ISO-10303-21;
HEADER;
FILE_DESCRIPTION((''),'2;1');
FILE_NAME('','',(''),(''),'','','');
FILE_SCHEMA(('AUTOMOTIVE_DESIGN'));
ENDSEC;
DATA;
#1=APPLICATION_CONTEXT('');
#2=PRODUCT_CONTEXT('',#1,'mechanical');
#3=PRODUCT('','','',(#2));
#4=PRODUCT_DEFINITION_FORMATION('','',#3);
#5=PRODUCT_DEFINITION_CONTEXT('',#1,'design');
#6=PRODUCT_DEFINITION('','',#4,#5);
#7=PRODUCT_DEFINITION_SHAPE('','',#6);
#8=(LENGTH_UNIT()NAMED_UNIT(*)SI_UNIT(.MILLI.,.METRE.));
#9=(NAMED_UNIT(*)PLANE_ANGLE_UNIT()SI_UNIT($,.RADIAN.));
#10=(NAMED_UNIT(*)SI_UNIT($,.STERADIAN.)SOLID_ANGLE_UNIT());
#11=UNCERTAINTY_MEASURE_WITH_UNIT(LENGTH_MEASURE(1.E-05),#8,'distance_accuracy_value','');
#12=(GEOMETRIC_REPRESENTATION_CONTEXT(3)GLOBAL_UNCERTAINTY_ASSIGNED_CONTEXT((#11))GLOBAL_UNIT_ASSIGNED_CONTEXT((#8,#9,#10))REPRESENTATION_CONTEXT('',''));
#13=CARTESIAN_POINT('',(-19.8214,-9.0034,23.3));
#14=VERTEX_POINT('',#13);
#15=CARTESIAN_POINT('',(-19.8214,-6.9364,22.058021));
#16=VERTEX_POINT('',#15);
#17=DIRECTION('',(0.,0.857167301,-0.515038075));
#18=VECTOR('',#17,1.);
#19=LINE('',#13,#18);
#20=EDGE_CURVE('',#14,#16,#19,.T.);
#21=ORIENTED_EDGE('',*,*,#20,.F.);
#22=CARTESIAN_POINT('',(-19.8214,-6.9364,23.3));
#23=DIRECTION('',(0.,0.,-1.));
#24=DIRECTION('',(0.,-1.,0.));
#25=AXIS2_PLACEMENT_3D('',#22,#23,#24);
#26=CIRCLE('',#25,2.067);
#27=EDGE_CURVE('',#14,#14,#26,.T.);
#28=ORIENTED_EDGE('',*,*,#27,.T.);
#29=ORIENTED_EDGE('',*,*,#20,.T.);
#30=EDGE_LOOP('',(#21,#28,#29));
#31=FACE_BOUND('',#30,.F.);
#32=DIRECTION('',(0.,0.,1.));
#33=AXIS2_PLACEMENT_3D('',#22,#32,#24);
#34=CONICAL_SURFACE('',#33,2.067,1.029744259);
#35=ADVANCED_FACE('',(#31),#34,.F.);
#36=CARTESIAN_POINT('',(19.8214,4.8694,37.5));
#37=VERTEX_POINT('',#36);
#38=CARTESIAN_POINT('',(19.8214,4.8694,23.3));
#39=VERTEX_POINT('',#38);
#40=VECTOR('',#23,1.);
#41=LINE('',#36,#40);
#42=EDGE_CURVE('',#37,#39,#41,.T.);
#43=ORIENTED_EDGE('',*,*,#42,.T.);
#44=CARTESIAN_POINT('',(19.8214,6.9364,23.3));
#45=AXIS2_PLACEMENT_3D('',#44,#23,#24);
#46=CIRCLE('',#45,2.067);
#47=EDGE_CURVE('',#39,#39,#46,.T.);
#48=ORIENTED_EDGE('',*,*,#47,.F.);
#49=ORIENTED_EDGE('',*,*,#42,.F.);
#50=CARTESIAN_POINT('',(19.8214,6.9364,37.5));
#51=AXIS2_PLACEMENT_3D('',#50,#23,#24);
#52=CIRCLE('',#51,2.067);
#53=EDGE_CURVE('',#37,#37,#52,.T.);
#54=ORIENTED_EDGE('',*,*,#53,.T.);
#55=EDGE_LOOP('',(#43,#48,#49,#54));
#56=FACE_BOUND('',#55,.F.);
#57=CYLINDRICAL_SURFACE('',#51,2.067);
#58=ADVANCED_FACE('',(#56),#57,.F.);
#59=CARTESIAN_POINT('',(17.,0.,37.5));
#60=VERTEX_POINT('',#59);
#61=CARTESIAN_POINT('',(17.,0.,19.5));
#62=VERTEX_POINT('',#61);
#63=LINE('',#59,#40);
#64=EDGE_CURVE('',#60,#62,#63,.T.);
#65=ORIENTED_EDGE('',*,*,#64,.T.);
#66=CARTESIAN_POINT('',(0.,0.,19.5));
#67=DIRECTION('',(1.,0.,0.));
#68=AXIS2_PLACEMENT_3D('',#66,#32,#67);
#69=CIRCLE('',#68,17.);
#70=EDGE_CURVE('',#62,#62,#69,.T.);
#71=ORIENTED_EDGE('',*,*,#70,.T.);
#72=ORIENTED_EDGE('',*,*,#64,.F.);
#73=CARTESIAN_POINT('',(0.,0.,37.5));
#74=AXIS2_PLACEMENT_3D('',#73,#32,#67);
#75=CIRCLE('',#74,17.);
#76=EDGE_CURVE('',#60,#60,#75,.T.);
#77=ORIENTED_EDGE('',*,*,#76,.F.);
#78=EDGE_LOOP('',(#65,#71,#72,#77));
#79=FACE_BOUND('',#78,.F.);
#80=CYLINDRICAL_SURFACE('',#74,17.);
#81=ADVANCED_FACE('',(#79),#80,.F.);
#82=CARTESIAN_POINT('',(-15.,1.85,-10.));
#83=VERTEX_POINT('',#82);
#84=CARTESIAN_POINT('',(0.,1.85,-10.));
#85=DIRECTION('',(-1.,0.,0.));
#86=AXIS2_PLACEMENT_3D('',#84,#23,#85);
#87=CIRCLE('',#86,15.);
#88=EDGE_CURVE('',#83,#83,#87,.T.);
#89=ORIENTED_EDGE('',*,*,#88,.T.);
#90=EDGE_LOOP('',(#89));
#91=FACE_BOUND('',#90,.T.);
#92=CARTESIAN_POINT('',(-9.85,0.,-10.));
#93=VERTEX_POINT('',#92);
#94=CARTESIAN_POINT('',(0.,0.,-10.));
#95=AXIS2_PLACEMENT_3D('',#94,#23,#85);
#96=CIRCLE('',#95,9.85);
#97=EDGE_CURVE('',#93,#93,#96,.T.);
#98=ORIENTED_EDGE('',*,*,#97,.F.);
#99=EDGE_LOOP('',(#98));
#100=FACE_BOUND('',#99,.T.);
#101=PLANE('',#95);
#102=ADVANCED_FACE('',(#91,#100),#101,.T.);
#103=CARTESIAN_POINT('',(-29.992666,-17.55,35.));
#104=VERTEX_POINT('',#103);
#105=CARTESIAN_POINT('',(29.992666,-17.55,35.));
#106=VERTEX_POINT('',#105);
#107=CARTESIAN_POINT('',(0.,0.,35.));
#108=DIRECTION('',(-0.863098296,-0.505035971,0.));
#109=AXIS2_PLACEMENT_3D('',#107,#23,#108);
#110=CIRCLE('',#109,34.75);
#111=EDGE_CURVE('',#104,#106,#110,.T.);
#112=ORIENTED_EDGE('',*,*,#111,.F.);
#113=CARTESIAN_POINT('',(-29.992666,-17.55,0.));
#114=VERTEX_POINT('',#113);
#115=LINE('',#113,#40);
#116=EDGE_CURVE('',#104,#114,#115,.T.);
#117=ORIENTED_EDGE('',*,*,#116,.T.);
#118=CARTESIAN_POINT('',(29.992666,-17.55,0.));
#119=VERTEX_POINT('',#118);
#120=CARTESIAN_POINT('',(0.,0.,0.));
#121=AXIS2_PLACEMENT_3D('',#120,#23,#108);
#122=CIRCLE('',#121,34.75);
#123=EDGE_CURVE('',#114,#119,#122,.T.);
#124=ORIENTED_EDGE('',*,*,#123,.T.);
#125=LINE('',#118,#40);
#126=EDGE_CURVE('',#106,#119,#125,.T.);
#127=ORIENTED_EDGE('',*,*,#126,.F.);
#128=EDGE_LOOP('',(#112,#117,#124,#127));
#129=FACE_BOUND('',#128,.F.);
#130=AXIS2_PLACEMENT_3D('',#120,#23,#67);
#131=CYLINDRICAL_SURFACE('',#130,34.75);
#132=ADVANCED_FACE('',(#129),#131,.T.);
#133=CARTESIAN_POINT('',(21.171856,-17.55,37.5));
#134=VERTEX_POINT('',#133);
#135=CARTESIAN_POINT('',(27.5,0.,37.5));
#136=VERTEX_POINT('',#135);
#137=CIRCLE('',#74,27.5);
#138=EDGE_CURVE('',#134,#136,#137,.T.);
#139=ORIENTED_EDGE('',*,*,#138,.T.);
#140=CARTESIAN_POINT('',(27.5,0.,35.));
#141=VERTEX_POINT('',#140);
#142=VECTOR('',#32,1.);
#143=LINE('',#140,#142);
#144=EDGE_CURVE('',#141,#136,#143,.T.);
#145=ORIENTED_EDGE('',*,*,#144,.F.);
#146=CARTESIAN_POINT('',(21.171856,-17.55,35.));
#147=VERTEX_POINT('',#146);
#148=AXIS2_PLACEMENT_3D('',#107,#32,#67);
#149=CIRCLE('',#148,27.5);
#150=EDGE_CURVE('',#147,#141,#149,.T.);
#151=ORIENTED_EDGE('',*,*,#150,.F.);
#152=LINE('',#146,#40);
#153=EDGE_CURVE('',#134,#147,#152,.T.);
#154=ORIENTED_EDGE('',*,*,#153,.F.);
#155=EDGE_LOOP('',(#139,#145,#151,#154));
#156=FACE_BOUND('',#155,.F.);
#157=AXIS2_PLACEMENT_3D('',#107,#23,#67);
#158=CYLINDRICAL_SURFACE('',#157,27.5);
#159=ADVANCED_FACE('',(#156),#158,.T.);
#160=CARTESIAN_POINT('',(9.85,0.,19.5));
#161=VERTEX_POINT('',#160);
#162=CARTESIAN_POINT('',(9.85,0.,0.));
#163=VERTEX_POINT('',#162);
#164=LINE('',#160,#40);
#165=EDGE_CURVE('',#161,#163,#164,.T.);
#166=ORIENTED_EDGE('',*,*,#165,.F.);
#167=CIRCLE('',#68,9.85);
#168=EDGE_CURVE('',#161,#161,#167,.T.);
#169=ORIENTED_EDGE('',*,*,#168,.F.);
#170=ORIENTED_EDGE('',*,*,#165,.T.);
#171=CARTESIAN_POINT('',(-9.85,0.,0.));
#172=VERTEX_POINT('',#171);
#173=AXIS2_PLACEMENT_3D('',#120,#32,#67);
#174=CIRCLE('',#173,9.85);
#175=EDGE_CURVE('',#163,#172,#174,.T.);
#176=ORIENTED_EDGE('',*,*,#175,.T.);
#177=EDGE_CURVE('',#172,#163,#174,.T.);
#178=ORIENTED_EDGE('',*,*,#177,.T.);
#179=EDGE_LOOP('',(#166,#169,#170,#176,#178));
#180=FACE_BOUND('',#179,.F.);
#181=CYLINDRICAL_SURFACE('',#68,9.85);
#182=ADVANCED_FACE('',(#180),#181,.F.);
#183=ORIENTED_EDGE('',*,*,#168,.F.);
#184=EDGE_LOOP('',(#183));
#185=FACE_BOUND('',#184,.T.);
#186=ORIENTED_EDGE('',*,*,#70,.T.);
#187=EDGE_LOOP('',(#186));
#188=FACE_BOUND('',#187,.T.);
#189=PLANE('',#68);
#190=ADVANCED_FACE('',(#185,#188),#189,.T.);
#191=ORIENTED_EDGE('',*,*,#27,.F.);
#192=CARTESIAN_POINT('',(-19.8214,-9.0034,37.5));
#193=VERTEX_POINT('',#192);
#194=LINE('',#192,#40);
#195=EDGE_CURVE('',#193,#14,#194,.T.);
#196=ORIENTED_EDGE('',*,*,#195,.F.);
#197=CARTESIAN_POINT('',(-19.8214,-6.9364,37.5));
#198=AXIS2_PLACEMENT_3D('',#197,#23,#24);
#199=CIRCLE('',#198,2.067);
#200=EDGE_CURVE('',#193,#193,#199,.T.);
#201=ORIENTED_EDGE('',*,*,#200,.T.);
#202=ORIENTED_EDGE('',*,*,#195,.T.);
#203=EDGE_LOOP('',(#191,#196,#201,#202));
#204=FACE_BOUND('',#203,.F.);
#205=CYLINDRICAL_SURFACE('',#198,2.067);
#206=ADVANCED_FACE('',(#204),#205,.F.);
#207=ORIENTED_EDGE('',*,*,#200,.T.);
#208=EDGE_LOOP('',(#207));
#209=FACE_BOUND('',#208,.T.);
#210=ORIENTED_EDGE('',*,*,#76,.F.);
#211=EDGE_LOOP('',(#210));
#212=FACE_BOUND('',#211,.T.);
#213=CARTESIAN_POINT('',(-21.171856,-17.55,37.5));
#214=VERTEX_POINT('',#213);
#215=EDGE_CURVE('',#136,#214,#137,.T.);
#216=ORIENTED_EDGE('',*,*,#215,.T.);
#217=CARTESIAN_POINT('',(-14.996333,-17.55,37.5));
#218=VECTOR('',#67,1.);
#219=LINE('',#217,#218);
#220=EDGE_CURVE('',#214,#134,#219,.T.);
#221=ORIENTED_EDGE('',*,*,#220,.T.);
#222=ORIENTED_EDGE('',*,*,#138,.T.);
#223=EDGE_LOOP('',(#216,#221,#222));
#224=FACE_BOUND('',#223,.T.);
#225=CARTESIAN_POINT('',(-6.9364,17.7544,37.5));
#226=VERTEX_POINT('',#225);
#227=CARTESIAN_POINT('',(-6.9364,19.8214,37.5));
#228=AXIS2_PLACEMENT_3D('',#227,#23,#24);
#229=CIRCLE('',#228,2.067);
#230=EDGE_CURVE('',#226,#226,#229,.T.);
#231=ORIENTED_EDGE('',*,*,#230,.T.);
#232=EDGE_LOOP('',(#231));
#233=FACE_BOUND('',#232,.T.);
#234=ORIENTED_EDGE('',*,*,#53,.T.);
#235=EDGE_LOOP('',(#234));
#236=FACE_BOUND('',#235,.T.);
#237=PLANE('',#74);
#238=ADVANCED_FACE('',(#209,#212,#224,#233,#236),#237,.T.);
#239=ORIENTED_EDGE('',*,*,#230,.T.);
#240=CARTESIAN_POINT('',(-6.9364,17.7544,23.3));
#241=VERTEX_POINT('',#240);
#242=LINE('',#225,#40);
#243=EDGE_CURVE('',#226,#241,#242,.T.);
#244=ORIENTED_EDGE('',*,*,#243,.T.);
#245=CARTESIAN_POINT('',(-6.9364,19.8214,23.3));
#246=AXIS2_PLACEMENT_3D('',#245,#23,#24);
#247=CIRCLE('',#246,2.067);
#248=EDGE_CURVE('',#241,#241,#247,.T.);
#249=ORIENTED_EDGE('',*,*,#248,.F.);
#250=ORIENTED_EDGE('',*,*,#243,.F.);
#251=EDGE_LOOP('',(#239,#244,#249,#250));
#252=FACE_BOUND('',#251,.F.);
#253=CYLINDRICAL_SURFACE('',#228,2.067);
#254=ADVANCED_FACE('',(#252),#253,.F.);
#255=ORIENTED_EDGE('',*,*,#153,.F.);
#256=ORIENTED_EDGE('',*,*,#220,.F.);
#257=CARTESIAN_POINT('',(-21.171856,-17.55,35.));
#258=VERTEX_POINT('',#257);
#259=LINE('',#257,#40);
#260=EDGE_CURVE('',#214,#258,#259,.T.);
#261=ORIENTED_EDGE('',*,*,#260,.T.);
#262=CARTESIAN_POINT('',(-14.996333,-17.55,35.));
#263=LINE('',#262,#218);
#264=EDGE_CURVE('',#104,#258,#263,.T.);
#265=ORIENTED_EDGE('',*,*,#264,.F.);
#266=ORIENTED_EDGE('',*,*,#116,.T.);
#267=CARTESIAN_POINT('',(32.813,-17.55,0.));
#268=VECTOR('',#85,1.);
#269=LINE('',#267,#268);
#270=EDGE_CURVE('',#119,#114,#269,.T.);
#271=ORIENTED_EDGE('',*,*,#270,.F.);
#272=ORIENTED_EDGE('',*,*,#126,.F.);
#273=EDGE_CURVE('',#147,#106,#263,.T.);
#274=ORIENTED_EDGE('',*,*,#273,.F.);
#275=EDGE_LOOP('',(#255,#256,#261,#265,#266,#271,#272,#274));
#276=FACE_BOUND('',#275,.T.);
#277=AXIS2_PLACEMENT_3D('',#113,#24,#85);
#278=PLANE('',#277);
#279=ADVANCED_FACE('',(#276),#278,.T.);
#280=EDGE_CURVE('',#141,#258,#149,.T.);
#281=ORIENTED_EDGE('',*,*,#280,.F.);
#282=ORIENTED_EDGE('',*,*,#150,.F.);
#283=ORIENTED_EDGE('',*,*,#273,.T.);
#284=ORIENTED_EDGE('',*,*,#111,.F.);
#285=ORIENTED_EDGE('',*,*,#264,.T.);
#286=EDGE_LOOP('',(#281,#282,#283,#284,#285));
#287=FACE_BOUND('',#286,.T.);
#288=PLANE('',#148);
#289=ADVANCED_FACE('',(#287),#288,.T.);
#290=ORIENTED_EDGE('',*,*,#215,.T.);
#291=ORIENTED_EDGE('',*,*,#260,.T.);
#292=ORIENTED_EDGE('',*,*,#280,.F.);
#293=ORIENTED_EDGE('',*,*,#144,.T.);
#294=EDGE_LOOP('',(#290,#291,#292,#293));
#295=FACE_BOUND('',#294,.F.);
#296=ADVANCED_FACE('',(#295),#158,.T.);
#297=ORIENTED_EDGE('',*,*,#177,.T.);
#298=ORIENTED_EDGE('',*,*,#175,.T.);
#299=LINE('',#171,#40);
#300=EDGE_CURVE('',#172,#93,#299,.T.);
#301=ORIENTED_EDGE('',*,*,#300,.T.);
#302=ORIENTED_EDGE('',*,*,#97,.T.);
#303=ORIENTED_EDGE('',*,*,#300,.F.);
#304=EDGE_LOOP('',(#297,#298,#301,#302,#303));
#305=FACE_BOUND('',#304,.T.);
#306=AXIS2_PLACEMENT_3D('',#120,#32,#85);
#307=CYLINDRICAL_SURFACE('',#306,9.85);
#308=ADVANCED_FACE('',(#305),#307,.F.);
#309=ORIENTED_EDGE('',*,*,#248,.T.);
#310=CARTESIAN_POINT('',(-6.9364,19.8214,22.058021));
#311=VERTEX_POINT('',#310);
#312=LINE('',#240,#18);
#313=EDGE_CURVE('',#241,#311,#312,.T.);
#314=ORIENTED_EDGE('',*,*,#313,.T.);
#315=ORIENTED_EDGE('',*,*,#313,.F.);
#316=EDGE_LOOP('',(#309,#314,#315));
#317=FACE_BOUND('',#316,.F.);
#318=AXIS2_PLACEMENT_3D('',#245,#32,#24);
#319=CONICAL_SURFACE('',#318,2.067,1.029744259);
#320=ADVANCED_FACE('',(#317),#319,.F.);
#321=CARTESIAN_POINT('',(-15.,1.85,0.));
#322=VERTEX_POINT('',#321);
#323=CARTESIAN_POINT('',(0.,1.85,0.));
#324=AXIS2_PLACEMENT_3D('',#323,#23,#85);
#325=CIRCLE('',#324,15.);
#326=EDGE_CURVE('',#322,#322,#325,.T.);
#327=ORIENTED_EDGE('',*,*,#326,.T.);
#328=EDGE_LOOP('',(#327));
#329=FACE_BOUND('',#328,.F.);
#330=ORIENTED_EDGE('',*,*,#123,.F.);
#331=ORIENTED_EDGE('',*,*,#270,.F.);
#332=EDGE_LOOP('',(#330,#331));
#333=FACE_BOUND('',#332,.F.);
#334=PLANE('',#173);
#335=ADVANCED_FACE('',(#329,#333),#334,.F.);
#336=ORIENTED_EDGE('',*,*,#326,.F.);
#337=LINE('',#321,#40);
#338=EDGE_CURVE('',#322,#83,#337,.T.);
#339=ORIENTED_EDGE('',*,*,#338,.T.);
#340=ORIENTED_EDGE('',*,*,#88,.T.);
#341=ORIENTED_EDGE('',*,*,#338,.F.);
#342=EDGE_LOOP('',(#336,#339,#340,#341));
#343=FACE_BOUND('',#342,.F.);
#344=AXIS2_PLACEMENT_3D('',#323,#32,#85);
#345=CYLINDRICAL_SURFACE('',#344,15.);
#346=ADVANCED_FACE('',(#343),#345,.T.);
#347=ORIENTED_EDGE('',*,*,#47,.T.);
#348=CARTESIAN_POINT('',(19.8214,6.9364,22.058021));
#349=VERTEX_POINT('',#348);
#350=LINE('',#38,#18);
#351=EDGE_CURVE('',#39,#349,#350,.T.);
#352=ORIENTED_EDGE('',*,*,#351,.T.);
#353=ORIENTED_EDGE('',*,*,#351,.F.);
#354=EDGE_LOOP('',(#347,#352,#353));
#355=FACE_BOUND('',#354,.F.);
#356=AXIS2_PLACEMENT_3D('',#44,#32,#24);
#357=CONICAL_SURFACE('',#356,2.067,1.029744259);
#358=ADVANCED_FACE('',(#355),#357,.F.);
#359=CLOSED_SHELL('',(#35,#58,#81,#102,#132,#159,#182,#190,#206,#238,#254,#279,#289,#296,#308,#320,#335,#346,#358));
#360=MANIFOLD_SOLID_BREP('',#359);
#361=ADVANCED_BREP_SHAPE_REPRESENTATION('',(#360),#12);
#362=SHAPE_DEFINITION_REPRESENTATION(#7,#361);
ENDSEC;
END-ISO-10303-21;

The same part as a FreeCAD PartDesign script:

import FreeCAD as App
import Part
import Sketcher
from FreeCAD import Vector
Q = App.Units.Quantity

doc = App.newDocument("Part")
body = doc.addObject("PartDesign::Body", "Body")

# Sketch on XY plane
sketch1 = body.newObject("Sketcher::SketchObject", "Sketch")
sketch1.AttachmentSupport = (doc.getObject("XY_Plane"), [""])
sketch1.MapMode = "FlatFace"
sketch1.addGeometry(Part.Circle(Vector(0, 0, 0), Vector(0, 0, 1), 35), False)
sketch1.addConstraint([
    Sketcher.Constraint("Coincident", 0, 3, -1, 1),
    Sketcher.Constraint("Diameter", 0, Q("69.5 mm")),
])
pad1 = body.newObject("PartDesign::Pad", "Pad")
pad1.Profile = sketch1
pad1.Length = 35

# Sketch on XY plane
sketch2 = body.newObject("Sketcher::SketchObject", "Sketch001")
sketch2.AttachmentSupport = (doc.getObject("XY_Plane"), [""])
sketch2.MapMode = "FlatFace"
sketch2.AttachmentOffset = App.Placement(Vector(0, 0, 35), App.Rotation())
sketch2.addGeometry(Part.Circle(Vector(0, 0, 0), Vector(0, 0, 1), 28), False)
sketch2.addConstraint([
    Sketcher.Constraint("Coincident", 0, 3, -1, 1),
    Sketcher.Constraint("Diameter", 0, Q("55 mm")),
])
pad2 = body.newObject("PartDesign::Pad", "Pad001")
pad2.Profile = sketch2
pad2.Length = 2.5

# Sketch on XY plane
sketch3 = body.newObject("Sketcher::SketchObject", "Sketch002")
sketch3.AttachmentSupport = (doc.getObject("XY_Plane"), [""])
sketch3.MapMode = "FlatFace"
sketch3.AttachmentOffset = App.Placement(Vector(0, 0, 37.5), App.Rotation())
sketch3.addGeometry(Part.Circle(Vector(0, 0, 0), Vector(0, 0, 1), 17), False)
sketch3.addConstraint([
    Sketcher.Constraint("Coincident", 0, 3, -1, 1),
    Sketcher.Constraint("Diameter", 0, Q("34 mm")),
])
pocket1 = body.newObject("PartDesign::Pocket", "Pocket")
pocket1.Profile = sketch3
pocket1.Length = 18

# Sketch on XY plane
sketch4 = body.newObject("Sketcher::SketchObject", "Sketch003")
sketch4.AttachmentSupport = (doc.getObject("XY_Plane"), [""])
sketch4.MapMode = "FlatFace"
sketch4.AttachmentOffset = App.Placement(Vector(0, 0, 19.5), App.Rotation())
sketch4.addGeometry(Part.Circle(Vector(0, 0, 0), Vector(0, 0, 1), 10), False)
sketch4.addConstraint([
    Sketcher.Constraint("Coincident", 0, 3, -1, 1),
    Sketcher.Constraint("Diameter", 0, Q("19.7 mm")),
])
pocket2 = body.newObject("PartDesign::Pocket", "Pocket001")
pocket2.Profile = sketch4
pocket2.Type = "ThroughAll"

# Sketch on XY plane
sketch5 = body.newObject("Sketcher::SketchObject", "Sketch004")
sketch5.AttachmentSupport = (doc.getObject("XY_Plane"), [""])
sketch5.MapMode = "FlatFace"
sketch5.addGeometry([
    Part.Circle(Vector(0, 2, 0), Vector(0, 0, 1), 15),
    Part.Circle(Vector(0, 0, 0), Vector(0, 0, 1), 10),
], False)
sketch5.addConstraint([
    Sketcher.Constraint("Coincident", 1, 3, -1, 1),
    Sketcher.Constraint("PointOnObject", 0, 3, -2),
    Sketcher.Constraint("Diameter", 0, Q("30 mm")),
    Sketcher.Constraint("Diameter", 1, Q("19.7 mm")),
    Sketcher.Constraint("DistanceY", -1, 1, 0, 3, Q("1.85 mm")),
])
pad3 = body.newObject("PartDesign::Pad", "Pad002")
pad3.Profile = sketch5
pad3.Length = 10
pad3.Reversed = True

# Sketch on XY plane
sketch6 = body.newObject("Sketcher::SketchObject", "Sketch005")
sketch6.AttachmentSupport = (doc.getObject("XY_Plane"), [""])
sketch6.MapMode = "FlatFace"
sketch6.addGeometry([
    Part.LineSegment(Vector(-44, -18, 0), Vector(33, -18, 0)),
    Part.LineSegment(Vector(33, -18, 0), Vector(33, -46, 0)),
    Part.LineSegment(Vector(33, -46, 0), Vector(-44, -46, 0)),
    Part.LineSegment(Vector(-44, -46, 0), Vector(-44, -18, 0)),
], False)
sketch6.addConstraint([
    Sketcher.Constraint("Coincident", 0, 2, 1, 1),
    Sketcher.Constraint("Coincident", 1, 2, 2, 1),
    Sketcher.Constraint("Coincident", 2, 2, 3, 1),
    Sketcher.Constraint("Coincident", 3, 2, 0, 1),
    Sketcher.Constraint("Horizontal", 0),
    Sketcher.Constraint("Vertical", 1),
    Sketcher.Constraint("Horizontal", 2),
    Sketcher.Constraint("Vertical", 3),
    Sketcher.Constraint("DistanceY", 1, 2, 1, 1, Q("28.35 mm")),
    Sketcher.Constraint("DistanceY", 1, 2, -1, 1, Q("45.9 mm")),
    Sketcher.Constraint("DistanceX", 0, 1, 0, 2, Q("76.6114 mm")),
    Sketcher.Constraint("DistanceX", -1, 1, 0, 2, Q("32.813 mm")),
])
pocket3 = body.newObject("PartDesign::Pocket", "Pocket002")
pocket3.Profile = sketch6
pocket3.Type = "ThroughAll"
pocket3.Reversed = True

# Sketch on XY plane
sketch7 = body.newObject("Sketcher::SketchObject", "Sketch006")
sketch7.AttachmentSupport = (doc.getObject("XY_Plane"), [""])
sketch7.MapMode = "FlatFace"
sketch7.AttachmentOffset = App.Placement(Vector(0, 0, 37.5), App.Rotation())
sketch7.addGeometry([
    Part.Circle(Vector(-6.9, 19.8, 0), Vector(0, 0, 1), 2.1),
    Part.Circle(Vector(-19.8, -6.9, 0), Vector(0, 0, 1), 2.1),
    Part.Circle(Vector(19.8, 6.9, 0), Vector(0, 0, 1), 2.1),
], False)
sketch7.addConstraint([
    Sketcher.Constraint("Equal", 0, 1),
    Sketcher.Constraint("Equal", 1, 2),
    Sketcher.Constraint("Symmetric", 1, 3, 2, 3, -1, 1),
    Sketcher.Constraint("Diameter", 0, Q("4.134 mm")),
    Sketcher.Constraint("DistanceX", 1, 3, 0, 3, Q("12.885 mm")),
    Sketcher.Constraint("DistanceY", 2, 3, 0, 3, Q("12.885 mm")),
    Sketcher.Constraint("DistanceX", 0, 3, -1, 1, Q("6.9364 mm")),
    Sketcher.Constraint("DistanceY", -1, 1, 0, 3, Q("19.8214 mm")),
])
doc.recompute()
hole = body.newObject("PartDesign::Hole", "Hole")
hole.Profile = sketch7
hole.ThreadType = "None"
hole.Diameter = 4.134
hole.DepthType = "Dimension"
hole.Depth = 14.2
hole.DrillPoint = "Angled"
hole.DrillPointAngle = 118

doc.recompute()
